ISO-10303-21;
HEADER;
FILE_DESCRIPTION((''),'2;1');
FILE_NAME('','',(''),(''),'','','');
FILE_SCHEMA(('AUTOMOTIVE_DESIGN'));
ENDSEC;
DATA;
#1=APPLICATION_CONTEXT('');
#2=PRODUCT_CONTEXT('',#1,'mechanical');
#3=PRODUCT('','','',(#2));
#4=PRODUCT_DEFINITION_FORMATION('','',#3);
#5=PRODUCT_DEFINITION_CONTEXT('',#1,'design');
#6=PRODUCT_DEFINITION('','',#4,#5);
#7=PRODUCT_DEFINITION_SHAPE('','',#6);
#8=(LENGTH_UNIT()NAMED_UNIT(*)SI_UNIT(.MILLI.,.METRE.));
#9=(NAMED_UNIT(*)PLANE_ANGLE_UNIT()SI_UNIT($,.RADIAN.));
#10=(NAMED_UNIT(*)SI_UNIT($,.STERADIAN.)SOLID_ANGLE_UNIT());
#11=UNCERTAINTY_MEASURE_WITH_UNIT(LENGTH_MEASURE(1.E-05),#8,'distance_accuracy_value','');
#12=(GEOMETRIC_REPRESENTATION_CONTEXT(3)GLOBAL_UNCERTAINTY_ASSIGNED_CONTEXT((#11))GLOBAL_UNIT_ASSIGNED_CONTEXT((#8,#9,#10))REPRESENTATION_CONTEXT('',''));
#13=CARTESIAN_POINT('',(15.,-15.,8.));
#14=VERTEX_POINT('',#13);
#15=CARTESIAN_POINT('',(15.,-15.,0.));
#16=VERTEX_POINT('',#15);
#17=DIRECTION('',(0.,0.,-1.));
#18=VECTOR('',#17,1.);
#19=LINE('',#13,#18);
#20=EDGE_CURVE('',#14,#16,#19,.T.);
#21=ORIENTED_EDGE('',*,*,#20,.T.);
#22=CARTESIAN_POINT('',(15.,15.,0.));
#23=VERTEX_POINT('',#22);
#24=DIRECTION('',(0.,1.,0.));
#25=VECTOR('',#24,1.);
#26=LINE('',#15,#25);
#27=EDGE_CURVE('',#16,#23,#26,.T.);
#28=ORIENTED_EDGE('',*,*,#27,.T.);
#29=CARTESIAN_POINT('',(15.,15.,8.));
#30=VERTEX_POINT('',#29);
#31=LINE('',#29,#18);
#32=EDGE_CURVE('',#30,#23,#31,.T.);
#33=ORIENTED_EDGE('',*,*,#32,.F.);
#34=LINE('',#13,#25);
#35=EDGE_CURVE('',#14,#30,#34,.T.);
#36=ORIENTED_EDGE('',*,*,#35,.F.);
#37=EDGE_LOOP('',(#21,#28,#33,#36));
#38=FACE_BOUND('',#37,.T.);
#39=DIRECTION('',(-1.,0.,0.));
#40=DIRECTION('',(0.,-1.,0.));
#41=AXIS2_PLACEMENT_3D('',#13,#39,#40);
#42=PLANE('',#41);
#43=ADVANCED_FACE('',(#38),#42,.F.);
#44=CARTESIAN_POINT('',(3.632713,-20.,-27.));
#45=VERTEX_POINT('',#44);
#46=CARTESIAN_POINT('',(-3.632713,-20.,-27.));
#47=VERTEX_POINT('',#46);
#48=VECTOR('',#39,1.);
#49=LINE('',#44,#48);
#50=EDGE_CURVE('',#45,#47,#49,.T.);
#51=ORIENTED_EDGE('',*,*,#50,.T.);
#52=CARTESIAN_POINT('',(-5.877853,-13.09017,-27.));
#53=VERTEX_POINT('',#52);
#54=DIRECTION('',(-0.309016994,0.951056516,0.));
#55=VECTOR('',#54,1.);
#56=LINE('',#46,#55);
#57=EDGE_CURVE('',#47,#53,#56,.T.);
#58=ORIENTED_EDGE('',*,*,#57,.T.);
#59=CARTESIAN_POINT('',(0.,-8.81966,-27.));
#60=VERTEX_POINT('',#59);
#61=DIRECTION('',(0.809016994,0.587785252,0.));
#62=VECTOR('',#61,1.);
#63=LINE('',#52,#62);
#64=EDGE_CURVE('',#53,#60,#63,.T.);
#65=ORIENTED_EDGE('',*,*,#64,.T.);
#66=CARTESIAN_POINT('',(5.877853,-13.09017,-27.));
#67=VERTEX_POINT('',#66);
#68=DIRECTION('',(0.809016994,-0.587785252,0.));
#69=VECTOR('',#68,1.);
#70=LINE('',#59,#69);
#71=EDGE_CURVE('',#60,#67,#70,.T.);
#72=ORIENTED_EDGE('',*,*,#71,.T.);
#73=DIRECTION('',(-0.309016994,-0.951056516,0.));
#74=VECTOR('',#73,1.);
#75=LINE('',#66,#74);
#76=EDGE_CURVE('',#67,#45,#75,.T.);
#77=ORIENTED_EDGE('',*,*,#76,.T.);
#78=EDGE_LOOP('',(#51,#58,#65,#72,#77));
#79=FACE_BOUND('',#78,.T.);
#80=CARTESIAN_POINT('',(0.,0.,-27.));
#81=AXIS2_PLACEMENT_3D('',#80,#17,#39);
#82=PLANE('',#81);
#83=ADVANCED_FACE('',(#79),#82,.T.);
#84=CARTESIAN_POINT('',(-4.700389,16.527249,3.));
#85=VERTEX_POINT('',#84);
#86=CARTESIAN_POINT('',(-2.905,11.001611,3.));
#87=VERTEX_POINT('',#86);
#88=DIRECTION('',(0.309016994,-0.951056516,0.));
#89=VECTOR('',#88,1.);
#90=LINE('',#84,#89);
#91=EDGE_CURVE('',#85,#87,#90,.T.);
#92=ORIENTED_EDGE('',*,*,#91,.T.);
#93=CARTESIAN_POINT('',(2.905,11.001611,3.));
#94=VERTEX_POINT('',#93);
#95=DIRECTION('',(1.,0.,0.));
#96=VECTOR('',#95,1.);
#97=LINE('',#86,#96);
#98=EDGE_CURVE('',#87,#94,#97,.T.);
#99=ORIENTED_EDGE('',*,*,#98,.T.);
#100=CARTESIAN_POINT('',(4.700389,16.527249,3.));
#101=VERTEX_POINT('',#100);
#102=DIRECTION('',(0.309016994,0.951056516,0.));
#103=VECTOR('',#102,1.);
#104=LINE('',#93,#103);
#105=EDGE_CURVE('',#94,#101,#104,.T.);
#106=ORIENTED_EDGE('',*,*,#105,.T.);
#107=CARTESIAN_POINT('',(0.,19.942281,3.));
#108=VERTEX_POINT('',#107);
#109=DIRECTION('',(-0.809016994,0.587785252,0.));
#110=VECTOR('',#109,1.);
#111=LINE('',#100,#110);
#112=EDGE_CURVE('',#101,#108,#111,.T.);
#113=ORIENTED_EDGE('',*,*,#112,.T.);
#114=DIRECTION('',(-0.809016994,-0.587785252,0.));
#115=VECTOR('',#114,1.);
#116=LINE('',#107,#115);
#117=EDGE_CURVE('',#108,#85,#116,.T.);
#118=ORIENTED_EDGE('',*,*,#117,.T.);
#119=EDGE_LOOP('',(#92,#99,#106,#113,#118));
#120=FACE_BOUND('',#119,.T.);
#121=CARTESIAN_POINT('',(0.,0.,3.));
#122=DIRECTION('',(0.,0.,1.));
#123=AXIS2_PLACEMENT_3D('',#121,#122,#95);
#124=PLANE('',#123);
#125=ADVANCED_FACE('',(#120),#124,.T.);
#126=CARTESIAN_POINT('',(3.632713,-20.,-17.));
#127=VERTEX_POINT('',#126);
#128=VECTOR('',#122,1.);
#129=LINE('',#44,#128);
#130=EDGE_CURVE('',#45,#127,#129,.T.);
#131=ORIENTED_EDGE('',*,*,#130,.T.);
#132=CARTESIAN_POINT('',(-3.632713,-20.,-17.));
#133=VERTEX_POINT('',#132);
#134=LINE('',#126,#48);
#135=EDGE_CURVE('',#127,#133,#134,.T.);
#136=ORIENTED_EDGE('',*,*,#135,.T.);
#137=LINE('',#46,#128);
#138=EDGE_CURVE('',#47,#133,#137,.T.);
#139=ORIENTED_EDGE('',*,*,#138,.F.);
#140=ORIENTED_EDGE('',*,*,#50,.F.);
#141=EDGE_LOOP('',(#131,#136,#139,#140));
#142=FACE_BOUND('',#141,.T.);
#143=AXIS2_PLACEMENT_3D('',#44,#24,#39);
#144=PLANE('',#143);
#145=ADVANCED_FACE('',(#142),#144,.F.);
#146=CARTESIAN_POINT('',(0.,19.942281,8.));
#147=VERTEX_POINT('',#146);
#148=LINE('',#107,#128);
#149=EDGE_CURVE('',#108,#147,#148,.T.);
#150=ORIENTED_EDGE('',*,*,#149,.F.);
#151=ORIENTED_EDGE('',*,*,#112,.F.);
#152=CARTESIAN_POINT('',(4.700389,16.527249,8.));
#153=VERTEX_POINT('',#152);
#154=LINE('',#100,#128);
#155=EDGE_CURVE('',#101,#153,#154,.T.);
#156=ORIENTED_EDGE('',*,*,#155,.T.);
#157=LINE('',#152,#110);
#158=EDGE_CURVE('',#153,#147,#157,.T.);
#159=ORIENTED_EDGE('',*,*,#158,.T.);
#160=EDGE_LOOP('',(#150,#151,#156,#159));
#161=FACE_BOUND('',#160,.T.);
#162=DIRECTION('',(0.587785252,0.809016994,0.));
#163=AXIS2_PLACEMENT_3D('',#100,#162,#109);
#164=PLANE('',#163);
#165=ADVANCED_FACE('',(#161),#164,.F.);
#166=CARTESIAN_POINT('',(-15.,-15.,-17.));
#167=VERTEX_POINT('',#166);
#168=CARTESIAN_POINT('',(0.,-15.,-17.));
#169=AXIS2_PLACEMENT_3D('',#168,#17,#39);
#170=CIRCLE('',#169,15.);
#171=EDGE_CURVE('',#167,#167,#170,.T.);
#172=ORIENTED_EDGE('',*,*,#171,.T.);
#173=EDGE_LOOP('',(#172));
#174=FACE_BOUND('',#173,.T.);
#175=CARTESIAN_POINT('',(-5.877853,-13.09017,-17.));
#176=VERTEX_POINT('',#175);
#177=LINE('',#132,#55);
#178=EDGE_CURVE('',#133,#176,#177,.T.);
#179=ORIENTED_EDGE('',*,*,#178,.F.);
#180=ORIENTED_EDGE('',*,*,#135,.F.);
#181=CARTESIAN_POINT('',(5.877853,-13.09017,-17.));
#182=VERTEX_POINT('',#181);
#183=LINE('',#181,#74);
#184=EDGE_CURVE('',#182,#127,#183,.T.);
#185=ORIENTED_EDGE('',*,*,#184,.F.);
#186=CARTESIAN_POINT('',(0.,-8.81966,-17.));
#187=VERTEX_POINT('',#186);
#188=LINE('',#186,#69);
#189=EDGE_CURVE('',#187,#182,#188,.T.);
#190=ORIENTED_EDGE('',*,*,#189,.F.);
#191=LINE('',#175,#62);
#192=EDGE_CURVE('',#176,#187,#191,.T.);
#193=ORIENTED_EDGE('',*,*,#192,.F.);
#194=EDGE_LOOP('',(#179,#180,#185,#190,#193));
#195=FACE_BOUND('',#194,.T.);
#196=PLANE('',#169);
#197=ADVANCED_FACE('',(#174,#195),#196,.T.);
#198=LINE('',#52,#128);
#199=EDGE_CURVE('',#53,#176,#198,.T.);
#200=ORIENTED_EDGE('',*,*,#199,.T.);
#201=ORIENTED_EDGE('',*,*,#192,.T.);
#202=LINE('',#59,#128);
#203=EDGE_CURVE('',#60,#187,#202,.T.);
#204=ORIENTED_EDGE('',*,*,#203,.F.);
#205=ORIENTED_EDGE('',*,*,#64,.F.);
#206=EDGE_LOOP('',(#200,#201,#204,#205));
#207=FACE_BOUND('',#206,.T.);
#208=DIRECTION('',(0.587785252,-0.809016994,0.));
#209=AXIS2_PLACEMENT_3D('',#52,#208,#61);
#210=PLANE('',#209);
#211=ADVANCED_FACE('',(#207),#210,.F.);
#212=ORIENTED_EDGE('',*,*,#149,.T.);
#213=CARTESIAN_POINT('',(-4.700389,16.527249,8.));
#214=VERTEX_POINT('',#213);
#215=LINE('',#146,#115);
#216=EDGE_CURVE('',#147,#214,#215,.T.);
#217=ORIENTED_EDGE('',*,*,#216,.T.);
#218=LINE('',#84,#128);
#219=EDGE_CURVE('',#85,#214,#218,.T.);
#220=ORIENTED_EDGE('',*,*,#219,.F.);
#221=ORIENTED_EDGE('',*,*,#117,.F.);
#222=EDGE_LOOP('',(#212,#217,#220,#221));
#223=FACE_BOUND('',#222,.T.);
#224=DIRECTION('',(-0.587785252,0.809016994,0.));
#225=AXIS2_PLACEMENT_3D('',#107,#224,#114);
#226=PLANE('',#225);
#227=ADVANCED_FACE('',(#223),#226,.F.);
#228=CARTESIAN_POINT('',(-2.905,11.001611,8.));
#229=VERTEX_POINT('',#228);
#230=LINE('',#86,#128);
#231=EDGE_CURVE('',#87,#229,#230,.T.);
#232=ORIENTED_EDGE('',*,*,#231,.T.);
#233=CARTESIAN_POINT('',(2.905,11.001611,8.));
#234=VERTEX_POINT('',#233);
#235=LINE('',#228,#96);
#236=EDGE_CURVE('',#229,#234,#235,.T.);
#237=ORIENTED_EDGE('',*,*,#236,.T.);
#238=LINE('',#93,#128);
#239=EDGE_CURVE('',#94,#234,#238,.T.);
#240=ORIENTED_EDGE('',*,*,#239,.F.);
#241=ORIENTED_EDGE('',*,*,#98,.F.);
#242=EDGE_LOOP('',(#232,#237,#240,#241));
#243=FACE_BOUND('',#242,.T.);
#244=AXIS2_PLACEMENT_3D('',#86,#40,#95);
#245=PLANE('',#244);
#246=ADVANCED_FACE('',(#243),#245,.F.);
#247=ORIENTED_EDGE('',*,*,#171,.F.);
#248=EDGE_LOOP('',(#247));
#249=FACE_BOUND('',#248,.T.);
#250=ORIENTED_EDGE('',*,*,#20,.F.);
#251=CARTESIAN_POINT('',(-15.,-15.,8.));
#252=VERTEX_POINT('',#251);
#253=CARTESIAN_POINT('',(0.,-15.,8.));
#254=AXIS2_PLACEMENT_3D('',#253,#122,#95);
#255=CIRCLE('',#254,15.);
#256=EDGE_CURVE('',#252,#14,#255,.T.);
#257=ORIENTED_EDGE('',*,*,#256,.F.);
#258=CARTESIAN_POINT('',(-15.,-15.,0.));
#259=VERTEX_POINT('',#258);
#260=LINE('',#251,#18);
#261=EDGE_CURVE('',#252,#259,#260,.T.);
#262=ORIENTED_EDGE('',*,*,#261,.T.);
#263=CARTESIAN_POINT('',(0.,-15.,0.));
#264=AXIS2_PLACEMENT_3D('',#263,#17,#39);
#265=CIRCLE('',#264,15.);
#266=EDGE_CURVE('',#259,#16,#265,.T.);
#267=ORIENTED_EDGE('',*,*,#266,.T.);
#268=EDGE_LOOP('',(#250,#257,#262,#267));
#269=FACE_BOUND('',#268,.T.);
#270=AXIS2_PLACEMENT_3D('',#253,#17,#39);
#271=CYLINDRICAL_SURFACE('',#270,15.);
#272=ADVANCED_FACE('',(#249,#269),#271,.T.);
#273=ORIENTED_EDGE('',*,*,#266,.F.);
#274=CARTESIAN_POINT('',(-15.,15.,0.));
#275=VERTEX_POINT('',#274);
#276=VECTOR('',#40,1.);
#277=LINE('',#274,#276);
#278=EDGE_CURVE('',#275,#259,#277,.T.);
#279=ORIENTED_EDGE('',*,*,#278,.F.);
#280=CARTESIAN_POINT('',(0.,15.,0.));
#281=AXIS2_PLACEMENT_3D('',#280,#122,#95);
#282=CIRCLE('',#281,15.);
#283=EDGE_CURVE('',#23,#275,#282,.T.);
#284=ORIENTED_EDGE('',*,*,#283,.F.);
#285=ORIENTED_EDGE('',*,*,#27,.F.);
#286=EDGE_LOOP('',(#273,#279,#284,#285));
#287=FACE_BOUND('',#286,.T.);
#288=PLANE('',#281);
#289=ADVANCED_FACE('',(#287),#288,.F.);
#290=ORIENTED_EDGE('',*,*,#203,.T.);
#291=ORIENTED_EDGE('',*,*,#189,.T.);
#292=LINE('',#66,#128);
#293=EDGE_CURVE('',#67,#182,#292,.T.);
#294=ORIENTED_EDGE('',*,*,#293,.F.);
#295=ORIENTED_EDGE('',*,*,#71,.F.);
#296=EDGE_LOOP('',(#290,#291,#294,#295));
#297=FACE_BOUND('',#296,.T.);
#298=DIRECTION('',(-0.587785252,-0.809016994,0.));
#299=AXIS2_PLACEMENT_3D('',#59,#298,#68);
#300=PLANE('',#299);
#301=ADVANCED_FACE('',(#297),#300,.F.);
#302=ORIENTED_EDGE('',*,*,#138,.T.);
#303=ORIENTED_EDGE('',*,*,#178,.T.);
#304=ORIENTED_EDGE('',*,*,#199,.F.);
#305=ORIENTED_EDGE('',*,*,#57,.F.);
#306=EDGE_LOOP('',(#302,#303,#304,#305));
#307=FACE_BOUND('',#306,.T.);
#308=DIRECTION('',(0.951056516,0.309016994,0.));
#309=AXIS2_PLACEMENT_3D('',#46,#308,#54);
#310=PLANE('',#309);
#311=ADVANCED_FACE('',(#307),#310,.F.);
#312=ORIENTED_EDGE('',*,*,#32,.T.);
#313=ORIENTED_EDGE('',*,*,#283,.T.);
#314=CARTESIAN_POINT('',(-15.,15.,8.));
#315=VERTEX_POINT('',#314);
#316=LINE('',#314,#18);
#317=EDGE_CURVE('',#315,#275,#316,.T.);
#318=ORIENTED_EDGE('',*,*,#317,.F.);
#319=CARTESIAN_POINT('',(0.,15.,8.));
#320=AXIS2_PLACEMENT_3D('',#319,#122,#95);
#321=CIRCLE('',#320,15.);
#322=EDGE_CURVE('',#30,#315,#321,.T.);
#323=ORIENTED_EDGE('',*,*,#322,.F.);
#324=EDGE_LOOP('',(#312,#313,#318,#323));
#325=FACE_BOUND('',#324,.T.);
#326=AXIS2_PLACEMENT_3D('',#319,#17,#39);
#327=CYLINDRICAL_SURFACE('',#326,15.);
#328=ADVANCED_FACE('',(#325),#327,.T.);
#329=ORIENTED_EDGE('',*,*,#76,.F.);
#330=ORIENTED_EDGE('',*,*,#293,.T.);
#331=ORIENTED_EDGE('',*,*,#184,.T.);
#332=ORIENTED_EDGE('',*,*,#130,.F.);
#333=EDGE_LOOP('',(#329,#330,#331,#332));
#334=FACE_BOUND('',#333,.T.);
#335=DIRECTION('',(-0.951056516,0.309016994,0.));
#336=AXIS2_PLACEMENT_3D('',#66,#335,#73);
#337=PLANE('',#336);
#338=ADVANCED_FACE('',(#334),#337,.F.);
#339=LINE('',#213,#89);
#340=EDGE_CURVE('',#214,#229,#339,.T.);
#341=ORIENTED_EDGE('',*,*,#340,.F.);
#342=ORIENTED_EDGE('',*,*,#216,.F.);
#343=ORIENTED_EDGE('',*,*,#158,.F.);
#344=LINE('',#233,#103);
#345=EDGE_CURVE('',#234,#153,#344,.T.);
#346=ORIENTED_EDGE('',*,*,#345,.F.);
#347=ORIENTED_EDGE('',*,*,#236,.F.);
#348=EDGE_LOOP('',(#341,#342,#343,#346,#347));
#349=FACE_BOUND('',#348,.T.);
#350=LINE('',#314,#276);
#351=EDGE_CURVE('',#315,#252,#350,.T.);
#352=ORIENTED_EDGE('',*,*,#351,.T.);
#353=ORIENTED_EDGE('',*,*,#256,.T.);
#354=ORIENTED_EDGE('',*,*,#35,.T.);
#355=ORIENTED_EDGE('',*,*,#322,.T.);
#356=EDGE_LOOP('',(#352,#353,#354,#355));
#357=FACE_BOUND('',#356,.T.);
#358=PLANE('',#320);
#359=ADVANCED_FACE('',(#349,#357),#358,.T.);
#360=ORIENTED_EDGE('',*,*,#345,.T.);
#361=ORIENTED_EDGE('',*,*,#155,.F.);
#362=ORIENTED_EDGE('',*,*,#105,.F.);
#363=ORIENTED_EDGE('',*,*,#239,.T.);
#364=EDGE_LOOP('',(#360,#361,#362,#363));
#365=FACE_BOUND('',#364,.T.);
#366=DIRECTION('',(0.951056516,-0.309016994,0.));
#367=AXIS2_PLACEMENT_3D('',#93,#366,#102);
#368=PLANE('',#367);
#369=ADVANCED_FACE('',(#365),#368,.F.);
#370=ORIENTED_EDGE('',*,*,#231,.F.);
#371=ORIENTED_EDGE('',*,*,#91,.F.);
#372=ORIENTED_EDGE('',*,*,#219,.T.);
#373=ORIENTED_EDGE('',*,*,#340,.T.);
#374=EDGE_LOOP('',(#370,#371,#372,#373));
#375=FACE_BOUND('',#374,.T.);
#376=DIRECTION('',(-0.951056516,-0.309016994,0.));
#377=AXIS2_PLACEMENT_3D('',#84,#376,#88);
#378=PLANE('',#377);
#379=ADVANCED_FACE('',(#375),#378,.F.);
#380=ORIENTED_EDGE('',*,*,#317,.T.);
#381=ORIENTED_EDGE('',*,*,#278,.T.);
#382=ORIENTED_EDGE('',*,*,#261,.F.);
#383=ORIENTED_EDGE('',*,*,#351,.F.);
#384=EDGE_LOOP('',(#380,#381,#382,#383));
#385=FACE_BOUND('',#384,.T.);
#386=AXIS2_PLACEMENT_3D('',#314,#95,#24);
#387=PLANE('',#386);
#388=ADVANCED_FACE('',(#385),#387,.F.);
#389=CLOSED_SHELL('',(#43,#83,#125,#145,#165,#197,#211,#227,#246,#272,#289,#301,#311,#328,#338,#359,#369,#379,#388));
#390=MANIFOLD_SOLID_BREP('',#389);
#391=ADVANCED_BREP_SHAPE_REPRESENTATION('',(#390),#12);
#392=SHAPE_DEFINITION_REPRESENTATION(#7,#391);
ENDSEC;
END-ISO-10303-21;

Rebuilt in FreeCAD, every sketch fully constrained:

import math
import FreeCAD as App
import Part
import Sketcher

V = App.Vector
Q = App.Units.Quantity


def add_polygon(sketch, points):
    """Adds a closed chain of lines whose ends are joined by coincident constraints."""
    first, n = sketch.GeometryCount, len(points)
    for a, b in zip(points, points[1:] + points[:1]):
        sketch.addGeometry(Part.LineSegment(App.Vector(*a, 0), App.Vector(*b, 0)), False)
    for i in range(n):
        sketch.addConstraint(Sketcher.Constraint("Coincident", first + i, 2, first + (i + 1) % n, 1))

doc = App.newDocument("Part")
body = doc.addObject("PartDesign::Body", "Body")

sketch1 = doc.addObject("Sketcher::SketchObject", "Sketch")
body.addObject(sketch1)
sketch1.AttachmentSupport = (doc.XY_Plane, [""])
sketch1.MapMode = "FlatFace"
sketch1.addGeometry(Part.LineSegment(V(-15, 15, 0), V(-15, -15, 0)), False)
sketch1.addGeometry(Part.ArcOfCircle(Part.Circle(V(0, -15, 0), V(0, 0, 1), 15), math.radians(180), math.radians(360)), False)
sketch1.addGeometry(Part.LineSegment(V(15, -15, 0), V(15, 15, 0)), False)
sketch1.addGeometry(Part.ArcOfCircle(Part.Circle(V(0, 15, 0), V(0, 0, 1), 15), math.radians(0), math.radians(180)), False)
sketch1.addConstraint(Sketcher.Constraint("Tangent", 0, 2, 1, 1))
sketch1.addConstraint(Sketcher.Constraint("Tangent", 1, 2, 2, 1))
sketch1.addConstraint(Sketcher.Constraint("Tangent", 2, 2, 3, 1))
sketch1.addConstraint(Sketcher.Constraint("Tangent", 3, 2, 0, 1))
sketch1.addConstraint(Sketcher.Constraint("Vertical", 0))
sketch1.addConstraint(Sketcher.Constraint("Vertical", 2))
sketch1.addConstraint(Sketcher.Constraint("Symmetric", 1, 3, 3, 3, -1, 1))
sketch1.addConstraint(Sketcher.Constraint("Radius", 1, Q("15 mm")))
sketch1.addConstraint(Sketcher.Constraint("DistanceY", 0, 2, 0, 1, Q("30 mm")))
pad1 = doc.addObject("PartDesign::Pad", "Pad")
body.addObject(pad1)
pad1.Profile = sketch1
pad1.Length = 8

sketch2 = doc.addObject("Sketcher::SketchObject", "Sketch001")
body.addObject(sketch2)
sketch2.AttachmentSupport = (doc.XY_Plane, [""])
sketch2.MapMode = "FlatFace"
sketch2.AttachmentOffset = App.Placement(V(0, 0, 8), App.Rotation())
add_polygon(sketch2, [(0, 19.942281), (-4.700389, 16.527249), (-2.905, 11.001611), (2.905, 11.001611), (4.700389, 16.527249)])
sketch2.addConstraint(Sketcher.Constraint("Horizontal", 2))
sketch2.addConstraint(Sketcher.Constraint("Symmetric", 0, 2, 3, 2, -2))
sketch2.addConstraint(Sketcher.Constraint("PointOnObject", 4, 2, -2))
sketch2.addConstraint(Sketcher.Constraint("Equal", 0, 1))
sketch2.addConstraint(Sketcher.Constraint("Equal", 1, 3))
sketch2.addConstraint(Sketcher.Constraint("Angle", 0, Q("-144 deg")))
sketch2.addConstraint(Sketcher.Constraint("Angle", 1, Q("-72 deg")))
sketch2.addConstraint(Sketcher.Constraint("DistanceX", 2, 1, 2, 2, Q("5.81 mm")))
sketch2.addConstraint(Sketcher.Constraint("DistanceY", -1, 1, 0, 2, Q("16.527249 mm")))
pocket1 = doc.addObject("PartDesign::Pocket", "Pocket")
body.addObject(pocket1)
pocket1.Profile = sketch2
pocket1.Length = 5

sketch3 = doc.addObject("Sketcher::SketchObject", "Sketch002")
body.addObject(sketch3)
sketch3.AttachmentSupport = (doc.XY_Plane, [""])
sketch3.MapMode = "FlatFace"
sketch3.AttachmentOffset = App.Placement(V(0, 0, -17), App.Rotation())
sketch3.addGeometry(Part.Circle(V(0, -15, 0), V(0, 0, 1), 15), False)
sketch3.addConstraint(Sketcher.Constraint("PointOnObject", 0, 3, -2))
sketch3.addConstraint(Sketcher.Constraint("Diameter", 0, Q("30 mm")))
sketch3.addConstraint(Sketcher.Constraint("DistanceY", 0, 3, -1, 1, Q("15 mm")))
pad2 = doc.addObject("PartDesign::Pad", "Pad001")
body.addObject(pad2)
pad2.Profile = sketch3
pad2.Length = 17

sketch4 = doc.addObject("Sketcher::SketchObject", "Sketch003")
body.addObject(sketch4)
sketch4.AttachmentSupport = (doc.XY_Plane, [""])
sketch4.MapMode = "FlatFace"
sketch4.AttachmentOffset = App.Placement(V(0, 0, -17), App.Rotation())
add_polygon(sketch4, [(0, -8.81966), (5.877853, -13.09017), (3.632713, -20), (-3.632713, -20), (-5.877853, -13.09017)])
sketch4.addConstraint(Sketcher.Constraint("Horizontal", 2))
sketch4.addConstraint(Sketcher.Constraint("Symmetric", 0, 2, 3, 2, -2))
sketch4.addConstraint(Sketcher.Constraint("PointOnObject", 4, 2, -2))
sketch4.addConstraint(Sketcher.Constraint("Equal", 0, 1))
sketch4.addConstraint(Sketcher.Constraint("Equal", 1, 3))
sketch4.addConstraint(Sketcher.Constraint("Angle", 0, Q("-36 deg")))
sketch4.addConstraint(Sketcher.Constraint("Angle", 1, Q("-108 deg")))
sketch4.addConstraint(Sketcher.Constraint("DistanceY", 1, 2, -1, 1, Q("20 mm")))
sketch4.addConstraint(Sketcher.Constraint("DistanceX", 2, 2, 2, 1, Q("7.265425 mm")))
pad3 = doc.addObject("PartDesign::Pad", "Pad002")
body.addObject(pad3)
pad3.Profile = sketch4
pad3.Length = 10
pad3.Reversed = True

doc.recompute()
